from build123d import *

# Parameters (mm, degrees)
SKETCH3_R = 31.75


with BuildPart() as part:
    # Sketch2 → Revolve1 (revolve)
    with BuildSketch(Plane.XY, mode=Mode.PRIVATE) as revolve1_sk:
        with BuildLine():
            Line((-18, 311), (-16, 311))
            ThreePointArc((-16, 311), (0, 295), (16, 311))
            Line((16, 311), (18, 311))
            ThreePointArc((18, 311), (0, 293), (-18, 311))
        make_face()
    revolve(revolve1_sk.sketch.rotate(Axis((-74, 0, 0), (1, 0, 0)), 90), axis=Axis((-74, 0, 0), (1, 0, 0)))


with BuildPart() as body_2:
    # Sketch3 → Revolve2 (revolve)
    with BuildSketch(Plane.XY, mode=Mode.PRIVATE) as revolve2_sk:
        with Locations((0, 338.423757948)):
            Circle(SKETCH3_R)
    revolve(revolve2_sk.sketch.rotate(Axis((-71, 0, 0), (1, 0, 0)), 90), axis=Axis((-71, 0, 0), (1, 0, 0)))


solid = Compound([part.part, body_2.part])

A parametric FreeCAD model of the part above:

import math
import FreeCAD as App
import Part
import Sketcher
Q = App.Units.Quantity

doc = App.newDocument("Part")
body = doc.addObject("PartDesign::Body", "Body")

# Sketch on XY plane
sketch1 = body.newObject("Sketcher::SketchObject", "Sketch")
sketch1.AttachmentSupport = (doc.getObject("XY_Plane"), [""])
sketch1.MapMode = "FlatFace"
sketch1.addGeometry(Part.LineSegment(App.Vector(-16, 311, 0), App.Vector(-18, 311, 0)), False)
sketch1.addGeometry(Part.ArcOfCircle(Part.Circle(App.Vector(0, 311, 0), App.Vector(0, 0, 1), 18), math.radians(180), math.radians(360)), False)
sketch1.addGeometry(Part.LineSegment(App.Vector(18, 311, 0), App.Vector(16, 311, 0)), False)
sketch1.addGeometry(Part.ArcOfCircle(Part.Circle(App.Vector(0, 311, 0), App.Vector(0, 0, 1), 16), math.radians(180), math.radians(360)), False)
sketch1.addConstraint(Sketcher.Constraint("Coincident", 0, 2, 1, 1))
sketch1.addConstraint(Sketcher.Constraint("Coincident", 1, 2, 2, 1))
sketch1.addConstraint(Sketcher.Constraint("Coincident", 2, 2, 3, 2))
sketch1.addConstraint(Sketcher.Constraint("Coincident", 3, 1, 0, 1))
sketch1.addConstraint(Sketcher.Constraint("Horizontal", 0))
sketch1.addConstraint(Sketcher.Constraint("Horizontal", 2))
sketch1.addConstraint(Sketcher.Constraint("Coincident", 3, 3, 1, 3))
sketch1.addConstraint(Sketcher.Constraint("Symmetric", 0, 2, 1, 2, -2))
sketch1.addConstraint(Sketcher.Constraint("Horizontal", 3, 3, 0, 2))
sketch1.addConstraint(Sketcher.Constraint("Radius", 1, Q("18 mm")))
sketch1.addConstraint(Sketcher.Constraint("Radius", 3, Q("16 mm")))
sketch1.addConstraint(Sketcher.Constraint("DistanceY", -1, 1, 1, 3, Q("311 mm")))
revolution = body.newObject("PartDesign::Revolution", "Revolution")
revolution.Profile = sketch1
revolution.ReferenceAxis = (sketch1, ["H_Axis"])
revolution.Angle = 360
body2 = doc.addObject("PartDesign::Body", "Body001")

# Sketch on XY plane
sketch2 = body2.newObject("Sketcher::SketchObject", "Sketch001")
sketch2.AttachmentSupport = (doc.getObject("XY_Plane001"), [""])
sketch2.MapMode = "FlatFace"
sketch2.addGeometry(Part.Circle(App.Vector(0, 338, 0), App.Vector(0, 0, 1), 32), False)
sketch2.addConstraint(Sketcher.Constraint("PointOnObject", 0, 3, -2))
sketch2.addConstraint(Sketcher.Constraint("Diameter", 0, Q("63.5 mm")))
sketch2.addConstraint(Sketcher.Constraint("DistanceY", -1, 1, 0, 3, Q("338.423758 mm")))
revolution2 = body2.newObject("PartDesign::Revolution", "Revolution001")
revolution2.Profile = sketch2
revolution2.ReferenceAxis = (sketch2, ["H_Axis"])
revolution2.Angle = 360

doc.recompute()
